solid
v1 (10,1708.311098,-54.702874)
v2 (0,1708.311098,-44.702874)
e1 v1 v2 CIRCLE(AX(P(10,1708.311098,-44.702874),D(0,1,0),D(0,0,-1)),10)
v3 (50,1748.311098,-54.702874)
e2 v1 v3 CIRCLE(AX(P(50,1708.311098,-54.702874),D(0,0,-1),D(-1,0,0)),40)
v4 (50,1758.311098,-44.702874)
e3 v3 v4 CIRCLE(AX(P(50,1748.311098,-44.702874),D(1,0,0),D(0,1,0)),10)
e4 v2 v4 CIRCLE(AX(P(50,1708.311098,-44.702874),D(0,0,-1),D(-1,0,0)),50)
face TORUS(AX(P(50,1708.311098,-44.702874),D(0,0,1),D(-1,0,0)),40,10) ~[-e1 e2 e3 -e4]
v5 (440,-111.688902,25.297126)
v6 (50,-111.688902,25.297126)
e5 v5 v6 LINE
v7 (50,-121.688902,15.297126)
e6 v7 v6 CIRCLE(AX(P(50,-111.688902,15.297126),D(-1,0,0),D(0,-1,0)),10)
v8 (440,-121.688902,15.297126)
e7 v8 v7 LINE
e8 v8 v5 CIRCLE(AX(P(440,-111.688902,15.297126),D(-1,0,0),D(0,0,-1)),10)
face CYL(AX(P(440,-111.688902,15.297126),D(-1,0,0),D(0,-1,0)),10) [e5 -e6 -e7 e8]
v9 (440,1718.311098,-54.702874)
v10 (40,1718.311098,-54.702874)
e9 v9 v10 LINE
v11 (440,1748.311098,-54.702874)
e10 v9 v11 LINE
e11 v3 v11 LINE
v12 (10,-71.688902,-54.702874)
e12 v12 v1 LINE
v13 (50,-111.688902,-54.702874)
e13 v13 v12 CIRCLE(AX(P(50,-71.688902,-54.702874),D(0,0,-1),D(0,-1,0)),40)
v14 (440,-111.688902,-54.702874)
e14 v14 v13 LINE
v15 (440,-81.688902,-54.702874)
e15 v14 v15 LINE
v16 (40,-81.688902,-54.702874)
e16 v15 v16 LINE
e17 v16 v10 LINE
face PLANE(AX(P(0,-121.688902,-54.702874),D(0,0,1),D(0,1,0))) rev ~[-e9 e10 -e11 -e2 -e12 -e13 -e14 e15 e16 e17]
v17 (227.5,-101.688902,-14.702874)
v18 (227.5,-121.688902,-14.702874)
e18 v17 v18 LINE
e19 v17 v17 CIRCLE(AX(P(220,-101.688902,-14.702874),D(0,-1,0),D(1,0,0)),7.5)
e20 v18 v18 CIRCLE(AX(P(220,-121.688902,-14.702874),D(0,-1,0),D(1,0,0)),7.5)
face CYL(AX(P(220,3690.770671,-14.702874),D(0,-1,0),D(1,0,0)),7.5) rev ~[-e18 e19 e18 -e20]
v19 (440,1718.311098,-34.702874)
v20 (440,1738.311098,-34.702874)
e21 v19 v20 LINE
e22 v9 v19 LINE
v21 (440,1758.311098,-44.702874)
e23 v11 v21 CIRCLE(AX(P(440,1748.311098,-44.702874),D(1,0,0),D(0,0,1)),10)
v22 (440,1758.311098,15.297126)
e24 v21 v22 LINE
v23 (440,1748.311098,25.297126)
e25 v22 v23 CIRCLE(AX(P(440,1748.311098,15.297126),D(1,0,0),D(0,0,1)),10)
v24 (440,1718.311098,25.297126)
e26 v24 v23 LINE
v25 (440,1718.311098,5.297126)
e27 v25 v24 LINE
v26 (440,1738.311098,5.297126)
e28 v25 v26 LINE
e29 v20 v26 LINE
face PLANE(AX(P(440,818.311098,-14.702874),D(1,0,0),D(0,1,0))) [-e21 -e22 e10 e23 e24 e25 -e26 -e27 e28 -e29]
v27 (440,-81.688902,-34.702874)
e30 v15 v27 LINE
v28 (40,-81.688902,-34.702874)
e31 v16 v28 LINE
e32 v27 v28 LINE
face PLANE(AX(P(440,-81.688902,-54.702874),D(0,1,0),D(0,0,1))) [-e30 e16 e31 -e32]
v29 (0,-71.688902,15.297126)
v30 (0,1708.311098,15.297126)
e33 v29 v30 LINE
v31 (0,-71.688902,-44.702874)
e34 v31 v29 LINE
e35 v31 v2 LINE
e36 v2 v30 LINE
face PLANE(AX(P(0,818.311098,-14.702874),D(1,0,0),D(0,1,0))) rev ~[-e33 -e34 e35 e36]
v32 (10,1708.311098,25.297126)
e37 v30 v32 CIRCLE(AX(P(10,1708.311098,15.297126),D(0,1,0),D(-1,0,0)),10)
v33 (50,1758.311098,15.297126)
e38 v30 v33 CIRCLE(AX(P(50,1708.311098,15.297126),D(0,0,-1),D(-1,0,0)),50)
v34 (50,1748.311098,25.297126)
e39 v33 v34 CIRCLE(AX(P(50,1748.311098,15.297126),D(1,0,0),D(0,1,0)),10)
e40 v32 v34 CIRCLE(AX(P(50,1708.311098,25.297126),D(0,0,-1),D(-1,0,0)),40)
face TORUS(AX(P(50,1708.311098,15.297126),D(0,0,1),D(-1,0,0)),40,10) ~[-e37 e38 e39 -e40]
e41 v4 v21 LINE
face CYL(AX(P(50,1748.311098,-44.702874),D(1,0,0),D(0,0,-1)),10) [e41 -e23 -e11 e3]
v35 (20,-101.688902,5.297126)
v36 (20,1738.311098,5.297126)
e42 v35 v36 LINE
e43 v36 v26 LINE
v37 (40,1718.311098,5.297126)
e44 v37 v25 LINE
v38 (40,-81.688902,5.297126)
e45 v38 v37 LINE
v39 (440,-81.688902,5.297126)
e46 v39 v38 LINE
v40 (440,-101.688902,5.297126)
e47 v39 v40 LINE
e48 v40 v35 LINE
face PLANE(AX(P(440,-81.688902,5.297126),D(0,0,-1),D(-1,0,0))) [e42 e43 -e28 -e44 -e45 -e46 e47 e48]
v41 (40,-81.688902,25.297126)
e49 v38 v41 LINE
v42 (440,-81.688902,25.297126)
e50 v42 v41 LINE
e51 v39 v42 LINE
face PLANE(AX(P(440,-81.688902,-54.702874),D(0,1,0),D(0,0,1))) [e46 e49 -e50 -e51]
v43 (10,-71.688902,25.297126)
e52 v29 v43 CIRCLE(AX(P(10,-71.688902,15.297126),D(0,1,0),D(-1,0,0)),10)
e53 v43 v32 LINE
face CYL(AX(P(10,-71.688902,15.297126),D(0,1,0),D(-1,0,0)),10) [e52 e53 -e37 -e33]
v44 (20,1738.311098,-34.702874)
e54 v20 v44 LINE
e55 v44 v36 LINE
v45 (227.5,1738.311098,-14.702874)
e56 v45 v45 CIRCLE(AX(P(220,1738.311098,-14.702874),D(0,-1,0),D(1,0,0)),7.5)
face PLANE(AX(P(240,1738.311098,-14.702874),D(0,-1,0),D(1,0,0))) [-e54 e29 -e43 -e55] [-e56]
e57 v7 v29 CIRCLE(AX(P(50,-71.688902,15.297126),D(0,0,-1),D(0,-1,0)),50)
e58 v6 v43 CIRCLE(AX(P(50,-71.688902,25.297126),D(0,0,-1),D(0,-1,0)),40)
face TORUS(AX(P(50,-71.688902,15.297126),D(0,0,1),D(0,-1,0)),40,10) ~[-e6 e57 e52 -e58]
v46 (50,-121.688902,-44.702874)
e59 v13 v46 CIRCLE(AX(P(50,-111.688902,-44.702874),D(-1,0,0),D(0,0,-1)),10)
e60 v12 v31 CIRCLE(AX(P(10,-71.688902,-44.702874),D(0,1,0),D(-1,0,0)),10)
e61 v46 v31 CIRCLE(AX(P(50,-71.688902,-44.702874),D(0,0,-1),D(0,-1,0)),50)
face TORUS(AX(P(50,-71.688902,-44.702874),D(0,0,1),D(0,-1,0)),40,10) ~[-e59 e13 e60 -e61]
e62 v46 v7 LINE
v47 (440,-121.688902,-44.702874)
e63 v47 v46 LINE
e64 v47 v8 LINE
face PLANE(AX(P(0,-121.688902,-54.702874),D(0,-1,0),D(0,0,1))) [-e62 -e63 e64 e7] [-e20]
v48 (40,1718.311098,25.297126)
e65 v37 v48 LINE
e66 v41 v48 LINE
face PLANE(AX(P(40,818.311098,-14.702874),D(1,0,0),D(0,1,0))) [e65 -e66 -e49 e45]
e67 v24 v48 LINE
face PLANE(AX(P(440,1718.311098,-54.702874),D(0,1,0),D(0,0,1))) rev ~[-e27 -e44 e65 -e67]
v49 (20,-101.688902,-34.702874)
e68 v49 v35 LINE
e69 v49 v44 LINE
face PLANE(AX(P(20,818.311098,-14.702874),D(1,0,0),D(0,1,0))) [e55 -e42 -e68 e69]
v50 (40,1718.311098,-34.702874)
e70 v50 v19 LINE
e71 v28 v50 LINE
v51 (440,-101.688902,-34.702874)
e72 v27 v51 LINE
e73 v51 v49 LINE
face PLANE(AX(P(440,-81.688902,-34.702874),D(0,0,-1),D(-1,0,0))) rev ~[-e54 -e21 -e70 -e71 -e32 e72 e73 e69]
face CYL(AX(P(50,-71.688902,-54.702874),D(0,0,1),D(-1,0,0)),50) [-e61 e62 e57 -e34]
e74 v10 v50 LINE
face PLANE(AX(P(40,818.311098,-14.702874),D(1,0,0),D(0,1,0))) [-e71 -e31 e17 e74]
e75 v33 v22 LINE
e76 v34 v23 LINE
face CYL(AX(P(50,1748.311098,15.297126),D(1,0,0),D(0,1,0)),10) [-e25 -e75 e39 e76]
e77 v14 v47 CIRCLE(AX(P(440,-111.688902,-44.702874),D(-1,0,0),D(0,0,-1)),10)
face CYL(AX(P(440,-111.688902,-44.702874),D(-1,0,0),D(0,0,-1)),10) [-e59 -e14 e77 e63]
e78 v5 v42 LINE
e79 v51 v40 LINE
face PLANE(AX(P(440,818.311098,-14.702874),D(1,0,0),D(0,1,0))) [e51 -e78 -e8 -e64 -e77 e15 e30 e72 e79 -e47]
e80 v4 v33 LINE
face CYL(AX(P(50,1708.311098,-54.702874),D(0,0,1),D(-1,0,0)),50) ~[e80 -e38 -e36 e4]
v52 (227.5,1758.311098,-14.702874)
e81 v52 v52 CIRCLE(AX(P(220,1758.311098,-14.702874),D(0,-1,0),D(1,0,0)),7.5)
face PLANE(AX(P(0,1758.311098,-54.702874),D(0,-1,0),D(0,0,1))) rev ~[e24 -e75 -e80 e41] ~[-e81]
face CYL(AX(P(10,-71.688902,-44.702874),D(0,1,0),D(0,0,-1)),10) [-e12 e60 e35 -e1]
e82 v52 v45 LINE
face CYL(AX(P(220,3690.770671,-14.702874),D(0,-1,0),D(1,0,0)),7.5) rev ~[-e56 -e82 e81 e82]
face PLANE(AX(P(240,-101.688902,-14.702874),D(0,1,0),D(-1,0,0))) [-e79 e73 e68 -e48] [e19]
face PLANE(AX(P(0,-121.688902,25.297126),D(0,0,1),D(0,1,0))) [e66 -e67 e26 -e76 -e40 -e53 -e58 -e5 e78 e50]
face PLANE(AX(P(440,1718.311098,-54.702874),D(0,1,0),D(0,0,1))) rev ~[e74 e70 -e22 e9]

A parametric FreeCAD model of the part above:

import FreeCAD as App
import Part
import Sketcher


def edges_at(feature, points):
    """Names of the edges that pass closest to the given points."""
    edges = feature.Shape.Edges
    near = lambda p: min(range(len(edges)), key=lambda i: edges[i].distToShape(Part.Vertex(*p))[0])
    return sorted({f"Edge{near(p) + 1}" for p in points})

doc = App.newDocument("Part")
body = doc.addObject("PartDesign::Body", "Body")

sketch1 = body.newObject("Sketcher::SketchObject", "Sketch")
sketch1.AttachmentSupport = (doc.getObject("YZ_Plane"), [""])
sketch1.MapMode = "FlatFace"
sketch1.addGeometry(Part.LineSegment(App.Vector(-122, 25, 0), App.Vector(-122, -55, 0)), False)
sketch1.addGeometry(Part.LineSegment(App.Vector(-122, -55, 0), App.Vector(1758, -55, 0)), False)
sketch1.addGeometry(Part.LineSegment(App.Vector(1758, -55, 0), App.Vector(1758, 25, 0)), False)
sketch1.addGeometry(Part.LineSegment(App.Vector(1758, 25, 0), App.Vector(-122, 25, 0)), False)
sketch1.addConstraint(Sketcher.Constraint("Coincident", 0, 2, 1, 1))
sketch1.addConstraint(Sketcher.Constraint("Coincident", 1, 2, 2, 1))
sketch1.addConstraint(Sketcher.Constraint("Coincident", 2, 2, 3, 1))
sketch1.addConstraint(Sketcher.Constraint("Coincident", 3, 2, 0, 1))
sketch1.addConstraint(Sketcher.Constraint("Vertical", 0))
sketch1.addConstraint(Sketcher.Constraint("Horizontal", 1))
sketch1.addConstraint(Sketcher.Constraint("Vertical", 2))
sketch1.addConstraint(Sketcher.Constraint("Horizontal", 3))
sketch1.addConstraint(Sketcher.Constraint("DistanceX", 1, 1, 1, 2, 1880.0))
sketch1.addConstraint(Sketcher.Constraint("DistanceY", 0, 2, 0, 1, 80.0))
sketch1.addConstraint(Sketcher.Constraint("DistanceX", 0, 2, -1, 1, 121.688902))
sketch1.addConstraint(Sketcher.Constraint("DistanceY", 0, 2, -1, 1, 54.702874))
pad1 = body.newObject("PartDesign::Pad", "Pad")
pad1.Profile = sketch1
pad1.Length = 440

sketch2 = body.newObject("Sketcher::SketchObject", "Sketch001")
sketch2.AttachmentSupport = (doc.getObject("YZ_Plane"), [""])
sketch2.MapMode = "FlatFace"
sketch2.AttachmentOffset = App.Placement(App.Vector(0, 0, 440), App.Rotation())
sketch2.addGeometry(Part.LineSegment(App.Vector(-82, 25, 0), App.Vector(-82, -55, 0)), False)
sketch2.addGeometry(Part.LineSegment(App.Vector(-82, -55, 0), App.Vector(1718, -55, 0)), False)
sketch2.addGeometry(Part.LineSegment(App.Vector(1718, -55, 0), App.Vector(1718, 25, 0)), False)
sketch2.addGeometry(Part.LineSegment(App.Vector(1718, 25, 0), App.Vector(-82, 25, 0)), False)
sketch2.addConstraint(Sketcher.Constraint("Coincident", 0, 2, 1, 1))
sketch2.addConstraint(Sketcher.Constraint("Coincident", 1, 2, 2, 1))
sketch2.addConstraint(Sketcher.Constraint("Coincident", 2, 2, 3, 1))
sketch2.addConstraint(Sketcher.Constraint("Coincident", 3, 2, 0, 1))
sketch2.addConstraint(Sketcher.Constraint("Vertical", 0))
sketch2.addConstraint(Sketcher.Constraint("Horizontal", 1))
sketch2.addConstraint(Sketcher.Constraint("Vertical", 2))
sketch2.addConstraint(Sketcher.Constraint("Horizontal", 3))
sketch2.addConstraint(Sketcher.Constraint("DistanceX", 1, 1, 1, 2, 1800.0))
sketch2.addConstraint(Sketcher.Constraint("DistanceY", 0, 2, 0, 1, 80.0))
sketch2.addConstraint(Sketcher.Constraint("DistanceX", 0, 2, -1, 1, 81.688902))
sketch2.addConstraint(Sketcher.Constraint("DistanceY", 0, 2, -1, 1, 54.702874))
pocket1 = body.newObject("PartDesign::Pocket", "Pocket")
pocket1.Profile = sketch2
pocket1.Length = 400

sketch3 = body.newObject("Sketcher::SketchObject", "Sketch002")
sketch3.AttachmentSupport = (doc.getObject("XZ_Plane"), [""])
sketch3.MapMode = "FlatFace"
sketch3.AttachmentOffset = App.Placement(App.Vector(0, 0, -1718.311098), App.Rotation())
sketch3.addGeometry(Part.LineSegment(App.Vector(40, 5, 0), App.Vector(40, -35, 0)), False)
sketch3.addGeometry(Part.LineSegment(App.Vector(40, -35, 0), App.Vector(440, -35, 0)), False)
sketch3.addGeometry(Part.LineSegment(App.Vector(440, -35, 0), App.Vector(440, 5, 0)), False)
sketch3.addGeometry(Part.LineSegment(App.Vector(440, 5, 0), App.Vector(40, 5, 0)), False)
sketch3.addConstraint(Sketcher.Constraint("Coincident", 0, 2, 1, 1))
sketch3.addConstraint(Sketcher.Constraint("Coincident", 1, 2, 2, 1))
sketch3.addConstraint(Sketcher.Constraint("Coincident", 2, 2, 3, 1))
sketch3.addConstraint(Sketcher.Constraint("Coincident", 3, 2, 0, 1))
sketch3.addConstraint(Sketcher.Constraint("Vertical", 0))
sketch3.addConstraint(Sketcher.Constraint("Horizontal", 1))
sketch3.addConstraint(Sketcher.Constraint("Vertical", 2))
sketch3.addConstraint(Sketcher.Constraint("Horizontal", 3))
sketch3.addConstraint(Sketcher.Constraint("DistanceX", 1, 1, 1, 2, 400.0))
sketch3.addConstraint(Sketcher.Constraint("DistanceY", 0, 2, 0, 1, 40.0))
sketch3.addConstraint(Sketcher.Constraint("DistanceX", -1, 1, 0, 2, 40.0))
sketch3.addConstraint(Sketcher.Constraint("DistanceY", 0, 2, -1, 1, 34.702874))
pocket2 = body.newObject("PartDesign::Pocket", "Pocket001")
pocket2.Profile = sketch3
pocket2.Length = 20

sketch4 = body.newObject("Sketcher::SketchObject", "Sketch003")
sketch4.AttachmentSupport = (doc.getObject("XZ_Plane"), [""])
sketch4.MapMode = "FlatFace"
sketch4.AttachmentOffset = App.Placement(App.Vector(0, 0, 81.688902), App.Rotation())
sketch4.addGeometry(Part.LineSegment(App.Vector(440, 5, 0), App.Vector(440, -35, 0)), False)
sketch4.addGeometry(Part.LineSegment(App.Vector(440, -35, 0), App.Vector(40, -35, 0)), False)
sketch4.addGeometry(Part.LineSegment(App.Vector(40, -35, 0), App.Vector(40, 5, 0)), False)
sketch4.addGeometry(Part.LineSegment(App.Vector(40, 5, 0), App.Vector(440, 5, 0)), False)
sketch4.addConstraint(Sketcher.Constraint("Coincident", 0, 2, 1, 1))
sketch4.addConstraint(Sketcher.Constraint("Coincident", 1, 2, 2, 1))
sketch4.addConstraint(Sketcher.Constraint("Coincident", 2, 2, 3, 1))
sketch4.addConstraint(Sketcher.Constraint("Coincident", 3, 2, 0, 1))
sketch4.addConstraint(Sketcher.Constraint("Vertical", 0))
sketch4.addConstraint(Sketcher.Constraint("Horizontal", 1))
sketch4.addConstraint(Sketcher.Constraint("Vertical", 2))
sketch4.addConstraint(Sketcher.Constraint("Horizontal", 3))
sketch4.addConstraint(Sketcher.Constraint("DistanceX", 1, 2, 1, 1, 400.0))
sketch4.addConstraint(Sketcher.Constraint("DistanceY", 0, 2, 0, 1, 40.0))
sketch4.addConstraint(Sketcher.Constraint("DistanceX", -1, 1, 0, 2, 440.0))
sketch4.addConstraint(Sketcher.Constraint("DistanceY", 0, 2, -1, 1, 34.702874))
pocket3 = body.newObject("PartDesign::Pocket", "Pocket002")
pocket3.Profile = sketch4
pocket3.Length = 20
pocket3.Reversed = True

sketch5 = body.newObject("Sketcher::SketchObject", "Sketch004")
sketch5.AttachmentSupport = (doc.getObject("YZ_Plane"), [""])
sketch5.MapMode = "FlatFace"
sketch5.AttachmentOffset = App.Placement(App.Vector(0, 0, 40), App.Rotation())
sketch5.addGeometry(Part.LineSegment(App.Vector(-102, 5, 0), App.Vector(-102, -35, 0)), False)
sketch5.addGeometry(Part.LineSegment(App.Vector(-102, -35, 0), App.Vector(1738, -35, 0)), False)
sketch5.addGeometry(Part.LineSegment(App.Vector(1738, -35, 0), App.Vector(1738, 5, 0)), False)
sketch5.addGeometry(Part.LineSegment(App.Vector(1738, 5, 0), App.Vector(-102, 5, 0)), False)
sketch5.addConstraint(Sketcher.Constraint("Coincident", 0, 2, 1, 1))
sketch5.addConstraint(Sketcher.Constraint("Coincident", 1, 2, 2, 1))
sketch5.addConstraint(Sketcher.Constraint("Coincident", 2, 2, 3, 1))
sketch5.addConstraint(Sketcher.Constraint("Coincident", 3, 2, 0, 1))
sketch5.addConstraint(Sketcher.Constraint("Vertical", 0))
sketch5.addConstraint(Sketcher.Constraint("Horizontal", 1))
sketch5.addConstraint(Sketcher.Constraint("Vertical", 2))
sketch5.addConstraint(Sketcher.Constraint("Horizontal", 3))
sketch5.addConstraint(Sketcher.Constraint("DistanceX", 1, 1, 1, 2, 1840.0))
sketch5.addConstraint(Sketcher.Constraint("DistanceY", 0, 2, 0, 1, 40.0))
sketch5.addConstraint(Sketcher.Constraint("DistanceX", 0, 2, -1, 1, 101.688902))
sketch5.addConstraint(Sketcher.Constraint("DistanceY", 0, 2, -1, 1, 34.702874))
pocket4 = body.newObject("PartDesign::Pocket", "Pocket003")
pocket4.Profile = sketch5
pocket4.Length = 20

sketch6 = body.newObject("Sketcher::SketchObject", "Sketch005")
sketch6.AttachmentSupport = (doc.getObject("XZ_Plane"), [""])
sketch6.MapMode = "FlatFace"
sketch6.AttachmentOffset = App.Placement(App.Vector(0, 0, -1758.311098), App.Rotation())
sketch6.addGeometry(Part.Circle(App.Vector(220, -15, 0), App.Vector(0, 0, 1), 8), False)
sketch6.addConstraint(Sketcher.Constraint("Diameter", 0, 15.0))
sketch6.addConstraint(Sketcher.Constraint("DistanceX", -1, 1, 0, 3, 220.0))
sketch6.addConstraint(Sketcher.Constraint("DistanceY", 0, 3, -1, 1, 14.702874))
doc.recompute()
hole = body.newObject("PartDesign::Hole", "Hole")
hole.Profile = sketch6
hole.ThreadType = "None"
hole.Diameter = 15
hole.DepthType = "ThroughAll"
hole.Reversed = True
doc.recompute()

fillet = body.newObject("PartDesign::Fillet", "Fillet")
fillet.Base = (hole, edges_at(hole, [(0, 1758.311, -14.703)]))
fillet.Radius = 50
doc.recompute()

fillet2 = body.newObject("PartDesign::Fillet", "Fillet001")
fillet2.Base = (fillet, edges_at(fillet, [(0, -121.689, -14.703)]))
fillet2.Radius = 50
doc.recompute()

fillet3 = body.newObject("PartDesign::Fillet", "Fillet002")
fillet3.Base = (fillet2, edges_at(fillet2, [(0, 818.311, -54.703), (0, 818.311, 25.297)]))
fillet3.Radius = 10

doc.recompute()
